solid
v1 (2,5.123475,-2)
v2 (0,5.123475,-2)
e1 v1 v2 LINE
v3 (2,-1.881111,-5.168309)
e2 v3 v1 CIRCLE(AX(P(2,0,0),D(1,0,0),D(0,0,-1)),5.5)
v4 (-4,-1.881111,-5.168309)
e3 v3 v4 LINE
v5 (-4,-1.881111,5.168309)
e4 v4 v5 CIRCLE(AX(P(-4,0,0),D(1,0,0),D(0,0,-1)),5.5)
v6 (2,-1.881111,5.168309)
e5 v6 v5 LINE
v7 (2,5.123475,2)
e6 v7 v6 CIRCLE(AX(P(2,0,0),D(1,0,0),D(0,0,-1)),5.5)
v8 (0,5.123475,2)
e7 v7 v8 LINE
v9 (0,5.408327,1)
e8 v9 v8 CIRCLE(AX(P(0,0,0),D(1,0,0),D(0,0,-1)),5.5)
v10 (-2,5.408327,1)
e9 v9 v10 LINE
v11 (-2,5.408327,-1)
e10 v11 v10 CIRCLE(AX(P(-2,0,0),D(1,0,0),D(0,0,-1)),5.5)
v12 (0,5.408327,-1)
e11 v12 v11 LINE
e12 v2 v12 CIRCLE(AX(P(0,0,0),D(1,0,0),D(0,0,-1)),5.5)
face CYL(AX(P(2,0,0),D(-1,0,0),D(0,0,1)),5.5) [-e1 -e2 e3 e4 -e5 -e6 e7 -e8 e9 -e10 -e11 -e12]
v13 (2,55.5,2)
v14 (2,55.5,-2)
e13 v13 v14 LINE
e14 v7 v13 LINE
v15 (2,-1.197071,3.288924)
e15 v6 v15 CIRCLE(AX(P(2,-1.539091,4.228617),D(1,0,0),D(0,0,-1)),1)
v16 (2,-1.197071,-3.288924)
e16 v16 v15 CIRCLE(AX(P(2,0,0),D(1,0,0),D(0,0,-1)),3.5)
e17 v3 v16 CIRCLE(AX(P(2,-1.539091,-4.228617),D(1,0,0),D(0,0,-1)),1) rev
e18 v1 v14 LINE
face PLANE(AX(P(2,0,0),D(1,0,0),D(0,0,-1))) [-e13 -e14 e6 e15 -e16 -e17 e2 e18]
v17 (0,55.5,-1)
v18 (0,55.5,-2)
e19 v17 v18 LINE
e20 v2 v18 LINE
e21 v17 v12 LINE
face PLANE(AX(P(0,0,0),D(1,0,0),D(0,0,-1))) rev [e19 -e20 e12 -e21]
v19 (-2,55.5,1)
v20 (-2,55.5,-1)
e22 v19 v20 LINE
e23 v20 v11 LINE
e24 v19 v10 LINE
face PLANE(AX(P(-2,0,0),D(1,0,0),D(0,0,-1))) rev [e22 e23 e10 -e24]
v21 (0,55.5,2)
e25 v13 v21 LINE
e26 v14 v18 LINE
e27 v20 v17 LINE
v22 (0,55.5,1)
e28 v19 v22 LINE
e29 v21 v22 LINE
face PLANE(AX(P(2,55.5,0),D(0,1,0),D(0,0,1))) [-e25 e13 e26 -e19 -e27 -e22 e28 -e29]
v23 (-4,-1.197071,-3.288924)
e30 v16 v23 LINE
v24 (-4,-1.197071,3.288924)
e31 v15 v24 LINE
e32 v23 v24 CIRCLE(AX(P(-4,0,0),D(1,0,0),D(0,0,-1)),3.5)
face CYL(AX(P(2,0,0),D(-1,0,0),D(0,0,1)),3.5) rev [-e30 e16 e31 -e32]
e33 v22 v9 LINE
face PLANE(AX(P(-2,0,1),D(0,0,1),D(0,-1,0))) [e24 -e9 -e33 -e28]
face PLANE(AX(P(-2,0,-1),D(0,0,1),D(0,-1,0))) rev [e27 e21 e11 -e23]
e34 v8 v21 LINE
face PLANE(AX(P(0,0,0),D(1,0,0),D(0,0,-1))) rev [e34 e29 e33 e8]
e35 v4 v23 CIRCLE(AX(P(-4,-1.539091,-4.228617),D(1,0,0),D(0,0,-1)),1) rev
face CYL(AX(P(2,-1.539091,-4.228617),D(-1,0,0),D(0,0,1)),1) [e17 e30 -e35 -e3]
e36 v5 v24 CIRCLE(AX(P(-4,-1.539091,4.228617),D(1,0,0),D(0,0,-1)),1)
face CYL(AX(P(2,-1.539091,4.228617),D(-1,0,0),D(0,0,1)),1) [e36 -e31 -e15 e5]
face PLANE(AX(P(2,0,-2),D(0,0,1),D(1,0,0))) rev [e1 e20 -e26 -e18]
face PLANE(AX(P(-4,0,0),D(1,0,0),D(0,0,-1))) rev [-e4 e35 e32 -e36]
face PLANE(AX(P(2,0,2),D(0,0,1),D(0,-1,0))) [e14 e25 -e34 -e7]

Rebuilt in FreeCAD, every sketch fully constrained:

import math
import FreeCAD as App
import Part
import Sketcher
from FreeCAD import Vector
Q = App.Units.Quantity

doc = App.newDocument("Part")
body = doc.addObject("PartDesign::Body", "Body")

# Sketch on YZ plane
sketch1 = body.newObject("Sketcher::SketchObject", "Sketch")
sketch1.AttachmentSupport = (doc.getObject("YZ_Plane"), [""])
sketch1.MapMode = "FlatFace"
sketch1.addGeometry(Part.ArcOfCircle(Part.Circle(Vector(0, 0, 0), Vector(0, 0, 1), 3.5), math.radians(-90), math.radians(90)), False)
sketch1.addGeometry(Part.ArcOfCircle(Part.Circle(Vector(0, 0, 0), Vector(0, 0, 1), 3.5), math.radians(-110), math.radians(-90)), False)
sketch1.addGeometry(Part.ArcOfCircle(Part.Circle(Vector(-1.5, -4.2, 0), Vector(0, 0, 1), 1), math.radians(70), math.radians(250)), False)
sketch1.addGeometry(Part.ArcOfCircle(Part.Circle(Vector(0, 0, 0), Vector(0, 0, 1), 5.5), math.radians(-110), math.radians(-90)), False)
sketch1.addGeometry(Part.ArcOfCircle(Part.Circle(Vector(0, 0, 0), Vector(0, 0, 1), 5.5), math.radians(-90), math.radians(90)), False)
sketch1.addGeometry(Part.ArcOfCircle(Part.Circle(Vector(0, 0, 0), Vector(0, 0, 1), 5.5), math.radians(90), math.radians(110)), False)
sketch1.addGeometry(Part.ArcOfCircle(Part.Circle(Vector(-1.5, 4.2, 0), Vector(0, 0, 1), 1), math.radians(110), math.radians(290)), False)
sketch1.addGeometry(Part.ArcOfCircle(Part.Circle(Vector(0, 0, 0), Vector(0, 0, 1), 3.5), math.radians(90), math.radians(110)), False)
sketch1.addConstraint(Sketcher.Constraint("Tangent", 0, 1, 1, 2))
sketch1.addConstraint(Sketcher.Constraint("Tangent", 1, 1, 2, 1))
sketch1.addConstraint(Sketcher.Constraint("Tangent", 2, 2, 3, 1))
sketch1.addConstraint(Sketcher.Constraint("Tangent", 3, 2, 4, 1))
sketch1.addConstraint(Sketcher.Constraint("Tangent", 4, 2, 5, 1))
sketch1.addConstraint(Sketcher.Constraint("Tangent", 5, 2, 6, 1))
sketch1.addConstraint(Sketcher.Constraint("Tangent", 6, 2, 7, 2))
sketch1.addConstraint(Sketcher.Constraint("Tangent", 7, 1, 0, 2))
sketch1.addConstraint(Sketcher.Constraint("Coincident", 0, 3, -1, 1))
sketch1.addConstraint(Sketcher.Constraint("Coincident", 3, 3, -1, 1))
sketch1.addConstraint(Sketcher.Constraint("Equal", 0, 1))
sketch1.addConstraint(Sketcher.Constraint("Equal", 3, 4))
sketch1.addConstraint(Sketcher.Constraint("Equal", 4, 5))
sketch1.addConstraint(Sketcher.Constraint("Equal", 2, 6))
sketch1.addConstraint(Sketcher.Constraint("PointOnObject", 0, 1, -2))
sketch1.addConstraint(Sketcher.Constraint("PointOnObject", 3, 2, -2))
sketch1.addConstraint(Sketcher.Constraint("PointOnObject", 4, 2, -2))
sketch1.addConstraint(Sketcher.Constraint("PointOnObject", 7, 1, -2))
sketch1.addConstraint(Sketcher.Constraint("Vertical", 2, 3, 6, 3))
sketch1.addConstraint(Sketcher.Constraint("Radius", 2, Q("1 mm")))
sketch1.addConstraint(Sketcher.Constraint("Radius", 0, Q("3.5 mm")))
sketch1.addConstraint(Sketcher.Constraint("DistanceX", 2, 3, -1, 1, Q("1.539091 mm")))
pad1 = body.newObject("PartDesign::Pad", "Pad")
pad1.Profile = sketch1
pad1.Type = "TwoLengths"
pad1.Length = 2
pad1.Length2 = 4

# Sketch on YZ plane
sketch2 = body.newObject("Sketcher::SketchObject", "Sketch001")
sketch2.AttachmentSupport = (doc.getObject("YZ_Plane"), [""])
sketch2.MapMode = "FlatFace"
sketch2.addGeometry(Part.LineSegment(Vector(3.5, 2, 0), Vector(3.5, -2, 0)), False)
sketch2.addGeometry(Part.LineSegment(Vector(3.5, -2, 0), Vector(55.5, -2, 0)), False)
sketch2.addGeometry(Part.LineSegment(Vector(55.5, -2, 0), Vector(55.5, 2, 0)), False)
sketch2.addGeometry(Part.LineSegment(Vector(55.5, 2, 0), Vector(3.5, 2, 0)), False)
sketch2.addConstraint(Sketcher.Constraint("Coincident", 0, 2, 1, 1))
sketch2.addConstraint(Sketcher.Constraint("Coincident", 1, 2, 2, 1))
sketch2.addConstraint(Sketcher.Constraint("Coincident", 2, 2, 3, 1))
sketch2.addConstraint(Sketcher.Constraint("Coincident", 3, 2, 0, 1))
sketch2.addConstraint(Sketcher.Constraint("Vertical", 0))
sketch2.addConstraint(Sketcher.Constraint("Horizontal", 1))
sketch2.addConstraint(Sketcher.Constraint("Vertical", 2))
sketch2.addConstraint(Sketcher.Constraint("Horizontal", 3))
sketch2.addConstraint(Sketcher.Constraint("DistanceX", 1, 1, 1, 2, Q("52 mm")))
sketch2.addConstraint(Sketcher.Constraint("DistanceY", 0, 2, 0, 1, Q("4 mm")))
sketch2.addConstraint(Sketcher.Constraint("DistanceY", 0, 2, -1, 1, Q("2 mm")))
sketch2.addConstraint(Sketcher.Constraint("DistanceX", -1, 1, 0, 2, Q("3.5 mm")))
pad2 = body.newObject("PartDesign::Pad", "Pad001")
pad2.Profile = sketch2
pad2.Length = 2

# Sketch on YZ plane
sketch3 = body.newObject("Sketcher::SketchObject", "Sketch002")
sketch3.AttachmentSupport = (doc.getObject("YZ_Plane"), [""])
sketch3.MapMode = "FlatFace"
sketch3.addGeometry(Part.LineSegment(Vector(55.5, -1, 0), Vector(55.5, 1, 0)), False)
sketch3.addGeometry(Part.LineSegment(Vector(55.5, 1, 0), Vector(3.5, 1, 0)), False)
sketch3.addGeometry(Part.LineSegment(Vector(3.5, 1, 0), Vector(3.5, -1, 0)), False)
sketch3.addGeometry(Part.LineSegment(Vector(3.5, -1, 0), Vector(55.5, -1, 0)), False)
sketch3.addConstraint(Sketcher.Constraint("Coincident", 0, 2, 1, 1))
sketch3.addConstraint(Sketcher.Constraint("Coincident", 1, 2, 2, 1))
sketch3.addConstraint(Sketcher.Constraint("Coincident", 2, 2, 3, 1))
sketch3.addConstraint(Sketcher.Constraint("Coincident", 3, 2, 0, 1))
sketch3.addConstraint(Sketcher.Constraint("Vertical", 0))
sketch3.addConstraint(Sketcher.Constraint("Horizontal", 1))
sketch3.addConstraint(Sketcher.Constraint("Vertical", 2))
sketch3.addConstraint(Sketcher.Constraint("Horizontal", 3))
sketch3.addConstraint(Sketcher.Constraint("DistanceX", 1, 2, 1, 1, Q("52 mm")))
sketch3.addConstraint(Sketcher.Constraint("DistanceY", 0, 1, 0, 2, Q("2 mm")))
sketch3.addConstraint(Sketcher.Constraint("DistanceY", -1, 1, 0, 2, Q("1 mm")))
sketch3.addConstraint(Sketcher.Constraint("DistanceX", -1, 1, 0, 2, Q("55.5 mm")))
pad3 = body.newObject("PartDesign::Pad", "Pad002")
pad3.Profile = sketch3
pad3.Length = 2
pad3.Reversed = True

doc.recompute()
